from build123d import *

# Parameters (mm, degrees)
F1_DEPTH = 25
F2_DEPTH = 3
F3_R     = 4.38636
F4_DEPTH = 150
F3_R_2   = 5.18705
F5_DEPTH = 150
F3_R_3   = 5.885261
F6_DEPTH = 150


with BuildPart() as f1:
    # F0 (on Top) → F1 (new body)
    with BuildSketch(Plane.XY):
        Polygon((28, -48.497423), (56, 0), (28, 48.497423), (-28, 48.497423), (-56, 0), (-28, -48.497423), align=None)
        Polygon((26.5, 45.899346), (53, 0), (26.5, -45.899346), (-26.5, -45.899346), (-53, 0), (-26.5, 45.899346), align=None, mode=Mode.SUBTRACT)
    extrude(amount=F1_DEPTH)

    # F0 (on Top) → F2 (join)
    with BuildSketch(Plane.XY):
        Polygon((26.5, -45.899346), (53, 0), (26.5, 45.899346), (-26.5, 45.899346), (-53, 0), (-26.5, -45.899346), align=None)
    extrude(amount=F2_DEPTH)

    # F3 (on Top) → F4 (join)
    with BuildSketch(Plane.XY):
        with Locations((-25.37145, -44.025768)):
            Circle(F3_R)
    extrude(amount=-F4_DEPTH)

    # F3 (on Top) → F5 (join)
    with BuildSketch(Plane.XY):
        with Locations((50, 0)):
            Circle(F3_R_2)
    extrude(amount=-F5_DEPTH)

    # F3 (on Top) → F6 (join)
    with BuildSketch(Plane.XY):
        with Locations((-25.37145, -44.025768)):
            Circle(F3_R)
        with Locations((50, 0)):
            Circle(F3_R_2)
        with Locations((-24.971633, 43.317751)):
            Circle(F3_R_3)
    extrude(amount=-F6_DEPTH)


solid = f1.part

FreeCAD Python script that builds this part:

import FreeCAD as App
import Part
import Sketcher

V = App.Vector
Q = App.Units.Quantity

doc = App.newDocument("Part")
body = doc.addObject("PartDesign::Body", "Body")

# Sketch on XY plane
sketch1 = doc.addObject("Sketcher::SketchObject", "Sketch")
body.addObject(sketch1)
sketch1.AttachmentSupport = (doc.XY_Plane, [""])
sketch1.MapMode = "FlatFace"
sketch1.addGeometry([
    Part.LineSegment(V(28, -48, 0), V(56, 0, 0)),  # 0
    Part.LineSegment(V(56, 0, 0), V(28, 48, 0)),  # 1
    Part.LineSegment(V(28, 48, 0), V(-28, 48, 0)),  # 2
    Part.LineSegment(V(-28, 48, 0), V(-56, 0, 0)),  # 3
    Part.LineSegment(V(-56, 0, 0), V(-28, -48, 0)),  # 4
    Part.LineSegment(V(-28, -48, 0), V(28, -48, 0)),  # 5
    Part.LineSegment(V(-26, 46, 0), V(26, 46, 0)),  # 6
    Part.LineSegment(V(26, 46, 0), V(53, 0, 0)),  # 7
    Part.LineSegment(V(53, 0, 0), V(26, -46, 0)),  # 8
    Part.LineSegment(V(26, -46, 0), V(-26, -46, 0)),  # 9
    Part.LineSegment(V(-26, -46, 0), V(-53, 0, 0)),  # 10
    Part.LineSegment(V(-53, 0, 0), V(-26, 46, 0)),  # 11
], False)
sketch1.addConstraint([
    Sketcher.Constraint("Coincident", 0, 2, 1, 1),
    Sketcher.Constraint("Coincident", 1, 2, 2, 1),
    Sketcher.Constraint("Coincident", 2, 2, 3, 1),
    Sketcher.Constraint("Coincident", 3, 2, 4, 1),
    Sketcher.Constraint("Coincident", 4, 2, 5, 1),
    Sketcher.Constraint("Coincident", 5, 2, 0, 1),
    Sketcher.Constraint("Coincident", 6, 2, 7, 1),
    Sketcher.Constraint("Coincident", 7, 2, 8, 1),
    Sketcher.Constraint("Coincident", 8, 2, 9, 1),
    Sketcher.Constraint("Coincident", 9, 2, 10, 1),
    Sketcher.Constraint("Coincident", 10, 2, 11, 1),
    Sketcher.Constraint("Coincident", 11, 2, 6, 1),
    Sketcher.Constraint("Horizontal", 2),
    Sketcher.Constraint("Horizontal", 5),
    Sketcher.Constraint("Horizontal", 6),
    Sketcher.Constraint("Horizontal", 9),
    Sketcher.Constraint("Symmetric", 0, 2, 3, 2, -1, 1),
    Sketcher.Constraint("Symmetric", 1, 2, 4, 2, -1, 1),
    Sketcher.Constraint("Symmetric", 6, 2, 9, 2, -1, 1),
    Sketcher.Constraint("Symmetric", 7, 2, 10, 2, -1, 1),
    Sketcher.Constraint("PointOnObject", 0, 2, -1),
    Sketcher.Constraint("PointOnObject", 7, 2, -1),
    Sketcher.Constraint("Parallel", 0, 3),
    Sketcher.Constraint("Parallel", 4, 7),
    Sketcher.Constraint("Parallel", 3, 8),
    Sketcher.Constraint("Parallel", 8, 11),
    Sketcher.Constraint("Vertical", 2, 2, 4, 2),
    Sketcher.Constraint("DistanceX", 2, 2, 2, 1, Q("56 mm")),
    Sketcher.Constraint("DistanceX", 6, 1, 6, 2, Q("53 mm")),
    Sketcher.Constraint("Angle", 0, Q("60 deg")),
    Sketcher.Constraint("Distance", 0, Q("56 mm")),
    Sketcher.Constraint("Distance", 7, Q("53 mm")),
])
pad1 = doc.addObject("PartDesign::Pad", "Pad")
body.addObject(pad1)
pad1.Profile = sketch1
pad1.Length = 25

# Sketch on XY plane
sketch2 = doc.addObject("Sketcher::SketchObject", "Sketch001")
body.addObject(sketch2)
sketch2.AttachmentSupport = (doc.XY_Plane, [""])
sketch2.MapMode = "FlatFace"
sketch2.addGeometry([
    Part.LineSegment(V(26, -46, 0), V(53, 0, 0)),  # 0
    Part.LineSegment(V(53, 0, 0), V(26, 46, 0)),  # 1
    Part.LineSegment(V(26, 46, 0), V(-26, 46, 0)),  # 2
    Part.LineSegment(V(-26, 46, 0), V(-53, 0, 0)),  # 3
    Part.LineSegment(V(-53, 0, 0), V(-26, -46, 0)),  # 4
    Part.LineSegment(V(-26, -46, 0), V(26, -46, 0)),  # 5
], False)
sketch2.addConstraint([
    Sketcher.Constraint("Coincident", 0, 2, 1, 1),
    Sketcher.Constraint("Coincident", 1, 2, 2, 1),
    Sketcher.Constraint("Coincident", 2, 2, 3, 1),
    Sketcher.Constraint("Coincident", 3, 2, 4, 1),
    Sketcher.Constraint("Coincident", 4, 2, 5, 1),
    Sketcher.Constraint("Coincident", 5, 2, 0, 1),
    Sketcher.Constraint("Horizontal", 2),
    Sketcher.Constraint("Horizontal", 5),
    Sketcher.Constraint("Symmetric", 0, 2, 3, 2, -1, 1),
    Sketcher.Constraint("Symmetric", 1, 2, 4, 2, -1, 1),
    Sketcher.Constraint("PointOnObject", 0, 2, -1),
    Sketcher.Constraint("Parallel", 0, 3),
    Sketcher.Constraint("Vertical", 2, 2, 4, 2),
    Sketcher.Constraint("DistanceX", 2, 2, 2, 1, Q("53 mm")),
    Sketcher.Constraint("Angle", 0, Q("60 deg")),
    Sketcher.Constraint("Distance", 0, Q("53 mm")),
])
pad2 = doc.addObject("PartDesign::Pad", "Pad001")
body.addObject(pad2)
pad2.Profile = sketch2
pad2.Length = 3

# Sketch on XY plane
sketch3 = doc.addObject("Sketcher::SketchObject", "Sketch002")
body.addObject(sketch3)
sketch3.AttachmentSupport = (doc.XY_Plane, [""])
sketch3.MapMode = "FlatFace"
sketch3.addGeometry(Part.Circle(V(-25.4, -44, 0), V(0, 0, 1), 4.4), False)
sketch3.addConstraint([
    Sketcher.Constraint("Diameter", 0, Q("8.77272 mm")),
    Sketcher.Constraint("DistanceX", 0, 3, -1, 1, Q("25.37145 mm")),
    Sketcher.Constraint("DistanceY", 0, 3, -1, 1, Q("44.025768 mm")),
])
pad3 = doc.addObject("PartDesign::Pad", "Pad002")
body.addObject(pad3)
pad3.Profile = sketch3
pad3.Length = 150
pad3.Reversed = True

# Sketch on XY plane
sketch4 = doc.addObject("Sketcher::SketchObject", "Sketch003")
body.addObject(sketch4)
sketch4.AttachmentSupport = (doc.XY_Plane, [""])
sketch4.MapMode = "FlatFace"
sketch4.addGeometry(Part.Circle(V(50, 0, 0), V(0, 0, 1), 5), False)
sketch4.addConstraint([
    Sketcher.Constraint("PointOnObject", 0, 3, -1),
    Sketcher.Constraint("DistanceX", -1, 1, 0, 3, Q("50 mm")),
    Sketcher.Constraint("Diameter", 0, Q("10.3741 mm")),
])
pad4 = doc.addObject("PartDesign::Pad", "Pad003")
body.addObject(pad4)
pad4.Profile = sketch4
pad4.Length = 150
pad4.Reversed = True

# Sketch on XY plane
sketch5 = doc.addObject("Sketcher::SketchObject", "Sketch004")
body.addObject(sketch5)
sketch5.AttachmentSupport = (doc.XY_Plane, [""])
sketch5.MapMode = "FlatFace"
sketch5.addGeometry([
    Part.Circle(V(-25.4, -44, 0), V(0, 0, 1), 4.4),
    Part.Circle(V(50, 0, 0), V(0, 0, 1), 5.2),
    Part.Circle(V(-25, 43.3, 0), V(0, 0, 1), 5.9),
], False)
sketch5.addConstraint([
    Sketcher.Constraint("PointOnObject", 1, 3, -1),
    Sketcher.Constraint("DistanceX", -1, 1, 1, 3, Q("50 mm")),
    Sketcher.Constraint("Diameter", 1, Q("10.3741 mm")),
    Sketcher.Constraint("Diameter", 0, Q("8.77272 mm")),
    Sketcher.Constraint("Diameter", 2, Q("11.770522 mm")),
    Sketcher.Constraint("DistanceX", 0, 3, -1, 1, Q("25.37145 mm")),
    Sketcher.Constraint("DistanceY", -1, 1, 2, 3, Q("43.317751 mm")),
    Sketcher.Constraint("DistanceY", 0, 3, 2, 3, Q("87.343519 mm")),
    Sketcher.Constraint("DistanceX", 2, 3, -1, 1, Q("24.971633 mm")),
])
pad5 = doc.addObject("PartDesign::Pad", "Pad004")
body.addObject(pad5)
pad5.Profile = sketch5
pad5.Length = 150
pad5.Reversed = True

doc.recompute()
